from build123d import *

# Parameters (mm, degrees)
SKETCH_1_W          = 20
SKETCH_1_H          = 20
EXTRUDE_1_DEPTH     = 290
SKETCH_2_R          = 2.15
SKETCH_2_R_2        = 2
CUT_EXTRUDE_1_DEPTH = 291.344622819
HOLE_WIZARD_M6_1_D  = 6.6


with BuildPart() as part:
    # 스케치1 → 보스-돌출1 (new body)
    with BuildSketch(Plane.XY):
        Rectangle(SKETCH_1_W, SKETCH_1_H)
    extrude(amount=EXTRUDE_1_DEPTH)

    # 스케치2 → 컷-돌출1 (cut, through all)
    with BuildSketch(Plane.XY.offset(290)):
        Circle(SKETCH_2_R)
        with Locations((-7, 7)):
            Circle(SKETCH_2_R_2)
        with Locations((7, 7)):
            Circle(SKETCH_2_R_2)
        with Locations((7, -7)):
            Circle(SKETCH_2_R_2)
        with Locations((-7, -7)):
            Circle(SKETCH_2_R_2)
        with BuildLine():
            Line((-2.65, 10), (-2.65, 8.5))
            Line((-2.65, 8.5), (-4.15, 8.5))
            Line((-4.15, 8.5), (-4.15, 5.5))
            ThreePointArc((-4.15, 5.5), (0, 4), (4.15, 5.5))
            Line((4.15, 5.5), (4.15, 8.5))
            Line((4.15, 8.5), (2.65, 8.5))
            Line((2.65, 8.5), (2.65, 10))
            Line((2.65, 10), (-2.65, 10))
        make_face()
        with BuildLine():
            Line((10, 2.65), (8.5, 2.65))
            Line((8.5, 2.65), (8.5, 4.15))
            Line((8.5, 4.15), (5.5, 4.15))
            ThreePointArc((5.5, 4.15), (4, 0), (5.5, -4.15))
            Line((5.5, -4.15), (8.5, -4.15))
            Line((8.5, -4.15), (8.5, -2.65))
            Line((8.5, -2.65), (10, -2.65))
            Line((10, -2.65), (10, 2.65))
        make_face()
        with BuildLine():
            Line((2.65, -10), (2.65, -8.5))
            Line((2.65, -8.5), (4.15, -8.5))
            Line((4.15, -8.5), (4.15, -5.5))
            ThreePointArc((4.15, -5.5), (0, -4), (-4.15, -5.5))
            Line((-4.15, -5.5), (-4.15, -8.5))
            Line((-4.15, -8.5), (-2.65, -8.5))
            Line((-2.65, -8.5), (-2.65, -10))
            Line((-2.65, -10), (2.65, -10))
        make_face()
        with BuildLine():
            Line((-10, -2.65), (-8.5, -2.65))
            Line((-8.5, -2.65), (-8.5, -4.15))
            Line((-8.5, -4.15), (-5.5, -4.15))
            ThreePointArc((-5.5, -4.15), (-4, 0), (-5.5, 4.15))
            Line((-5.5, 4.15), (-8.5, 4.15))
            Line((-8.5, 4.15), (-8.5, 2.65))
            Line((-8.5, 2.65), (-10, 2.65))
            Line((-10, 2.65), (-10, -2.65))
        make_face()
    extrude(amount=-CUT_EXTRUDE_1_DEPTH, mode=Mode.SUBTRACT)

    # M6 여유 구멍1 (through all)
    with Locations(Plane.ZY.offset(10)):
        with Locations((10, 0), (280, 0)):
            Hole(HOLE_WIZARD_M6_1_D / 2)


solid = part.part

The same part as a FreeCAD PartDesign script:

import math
import FreeCAD as App
import Part
import Sketcher
Q = App.Units.Quantity


def add_polygon(sketch, points):
    """Adds a closed chain of lines whose ends are joined by coincident constraints."""
    first, n = sketch.GeometryCount, len(points)
    for a, b in zip(points, points[1:] + points[:1]):
        sketch.addGeometry(Part.LineSegment(App.Vector(*a, 0), App.Vector(*b, 0)), False)
    for i in range(n):
        sketch.addConstraint(Sketcher.Constraint("Coincident", first + i, 2, first + (i + 1) % n, 1))

doc = App.newDocument("Part")
body = doc.addObject("PartDesign::Body", "Body")

# Sketch on XY plane
sketch1 = body.newObject("Sketcher::SketchObject", "Sketch")
sketch1.AttachmentSupport = (doc.getObject("XY_Plane"), [""])
sketch1.MapMode = "FlatFace"
add_polygon(sketch1, [(-10, 10), (-10, -10), (10, -10), (10, 10)])  # lines 0-3
sketch1.addConstraint([
    Sketcher.Constraint("Vertical", 0),
    Sketcher.Constraint("Horizontal", 1),
    Sketcher.Constraint("Vertical", 2),
    Sketcher.Constraint("Horizontal", 3),
    Sketcher.Constraint("Symmetric", 0, 2, 2, 2, -1, 1),
    Sketcher.Constraint("Equal", 3, 0),
    Sketcher.Constraint("DistanceX", 1, 1, 1, 2, Q("20 mm")),
])
pad1 = body.newObject("PartDesign::Pad", "Pad")
pad1.Profile = sketch1
pad1.Length = 290

# Sketch on XY plane
sketch2 = body.newObject("Sketcher::SketchObject", "Sketch001")
sketch2.AttachmentSupport = (doc.getObject("XY_Plane"), [""])
sketch2.MapMode = "FlatFace"
sketch2.AttachmentOffset = App.Placement(App.Vector(0, 0, 290), App.Rotation())
sketch2.addGeometry([
    Part.Circle(App.Vector(0, 0, 0), App.Vector(0, 0, 1), 2.1),  # 0
    Part.Circle(App.Vector(-7, 7, 0), App.Vector(0, 0, 1), 2),  # 1
    Part.Circle(App.Vector(7, 7, 0), App.Vector(0, 0, 1), 2),  # 2
    Part.Circle(App.Vector(7, -7, 0), App.Vector(0, 0, 1), 2),  # 3
    Part.Circle(App.Vector(-7, -7, 0), App.Vector(0, 0, 1), 2),  # 4
    Part.LineSegment(App.Vector(-2.6, 10, 0), App.Vector(-2.6, 8.5, 0)),  # 5
    Part.LineSegment(App.Vector(-2.6, 8.5, 0), App.Vector(-4.2, 8.5, 0)),  # 6
    Part.LineSegment(App.Vector(-4.2, 8.5, 0), App.Vector(-4.2, 5.5, 0)),  # 7
    Part.ArcOfCircle(Part.Circle(App.Vector(0, 10.5, 0), App.Vector(0, 0, 1), 6.5), math.radians(-130), math.radians(-50)),  # 8
    Part.LineSegment(App.Vector(4.2, 5.5, 0), App.Vector(4.2, 8.5, 0)),  # 9
    Part.LineSegment(App.Vector(4.2, 8.5, 0), App.Vector(2.6, 8.5, 0)),  # 10
    Part.LineSegment(App.Vector(2.6, 8.5, 0), App.Vector(2.6, 10, 0)),  # 11
    Part.LineSegment(App.Vector(2.6, 10, 0), App.Vector(-2.6, 10, 0)),  # 12
    Part.LineSegment(App.Vector(10, 2.6, 0), App.Vector(8.5, 2.6, 0)),  # 13
    Part.LineSegment(App.Vector(8.5, 2.6, 0), App.Vector(8.5, 4.2, 0)),  # 14
    Part.LineSegment(App.Vector(8.5, 4.2, 0), App.Vector(5.5, 4.2, 0)),  # 15
    Part.ArcOfCircle(Part.Circle(App.Vector(10.5, 0, 0), App.Vector(0, 0, 1), 6.5), math.radians(140), math.radians(220)),  # 16
    Part.LineSegment(App.Vector(5.5, -4.2, 0), App.Vector(8.5, -4.2, 0)),  # 17
    Part.LineSegment(App.Vector(8.5, -4.2, 0), App.Vector(8.5, -2.6, 0)),  # 18
    Part.LineSegment(App.Vector(8.5, -2.6, 0), App.Vector(10, -2.6, 0)),  # 19
    Part.LineSegment(App.Vector(10, -2.6, 0), App.Vector(10, 2.6, 0)),  # 20
    Part.LineSegment(App.Vector(2.6, -10, 0), App.Vector(2.6, -8.5, 0)),  # 21
    Part.LineSegment(App.Vector(2.6, -8.5, 0), App.Vector(4.2, -8.5, 0)),  # 22
    Part.LineSegment(App.Vector(4.2, -8.5, 0), App.Vector(4.2, -5.5, 0)),  # 23
    Part.ArcOfCircle(Part.Circle(App.Vector(0, -10.5, 0), App.Vector(0, 0, 1), 6.5), math.radians(50), math.radians(130)),  # 24
    Part.LineSegment(App.Vector(-4.2, -5.5, 0), App.Vector(-4.2, -8.5, 0)),  # 25
    Part.LineSegment(App.Vector(-4.2, -8.5, 0), App.Vector(-2.6, -8.5, 0)),  # 26
    Part.LineSegment(App.Vector(-2.6, -8.5, 0), App.Vector(-2.6, -10, 0)),  # 27
    Part.LineSegment(App.Vector(-2.6, -10, 0), App.Vector(2.6, -10, 0)),  # 28
    Part.LineSegment(App.Vector(-10, -2.6, 0), App.Vector(-8.5, -2.6, 0)),  # 29
    Part.LineSegment(App.Vector(-8.5, -2.6, 0), App.Vector(-8.5, -4.2, 0)),  # 30
    Part.LineSegment(App.Vector(-8.5, -4.2, 0), App.Vector(-5.5, -4.2, 0)),  # 31
    Part.ArcOfCircle(Part.Circle(App.Vector(-10.5, 0, 0), App.Vector(0, 0, 1), 6.5), math.radians(-40), math.radians(40)),  # 32
    Part.LineSegment(App.Vector(-5.5, 4.2, 0), App.Vector(-8.5, 4.2, 0)),  # 33
    Part.LineSegment(App.Vector(-8.5, 4.2, 0), App.Vector(-8.5, 2.6, 0)),  # 34
    Part.LineSegment(App.Vector(-8.5, 2.6, 0), App.Vector(-10, 2.6, 0)),  # 35
    Part.LineSegment(App.Vector(-10, 2.6, 0), App.Vector(-10, -2.6, 0)),  # 36
], False)
sketch2.addConstraint([
    Sketcher.Constraint("Coincident", 5, 2, 6, 1),
    Sketcher.Constraint("Coincident", 6, 2, 7, 1),
    Sketcher.Constraint("Coincident", 7, 2, 8, 1),
    Sketcher.Constraint("Coincident", 8, 2, 9, 1),
    Sketcher.Constraint("Coincident", 9, 2, 10, 1),
    Sketcher.Constraint("Coincident", 10, 2, 11, 1),
    Sketcher.Constraint("Coincident", 11, 2, 12, 1),
    Sketcher.Constraint("Coincident", 12, 2, 5, 1),
    Sketcher.Constraint("Coincident", 13, 2, 14, 1),
    Sketcher.Constraint("Coincident", 14, 2, 15, 1),
    Sketcher.Constraint("Coincident", 15, 2, 16, 1),
    Sketcher.Constraint("Coincident", 16, 2, 17, 1),
    Sketcher.Constraint("Coincident", 17, 2, 18, 1),
    Sketcher.Constraint("Coincident", 18, 2, 19, 1),
    Sketcher.Constraint("Coincident", 19, 2, 20, 1),
    Sketcher.Constraint("Coincident", 20, 2, 13, 1),
    Sketcher.Constraint("Coincident", 21, 2, 22, 1),
    Sketcher.Constraint("Coincident", 22, 2, 23, 1),
    Sketcher.Constraint("Coincident", 23, 2, 24, 1),
    Sketcher.Constraint("Coincident", 24, 2, 25, 1),
    Sketcher.Constraint("Coincident", 25, 2, 26, 1),
    Sketcher.Constraint("Coincident", 26, 2, 27, 1),
    Sketcher.Constraint("Coincident", 27, 2, 28, 1),
    Sketcher.Constraint("Coincident", 28, 2, 21, 1),
    Sketcher.Constraint("Coincident", 29, 2, 30, 1),
    Sketcher.Constraint("Coincident", 30, 2, 31, 1),
    Sketcher.Constraint("Coincident", 31, 2, 32, 1),
    Sketcher.Constraint("Coincident", 32, 2, 33, 1),
    Sketcher.Constraint("Coincident", 33, 2, 34, 1),
    Sketcher.Constraint("Coincident", 34, 2, 35, 1),
    Sketcher.Constraint("Coincident", 35, 2, 36, 1),
    Sketcher.Constraint("Coincident", 36, 2, 29, 1),
    Sketcher.Constraint("Vertical", 5),
    Sketcher.Constraint("Horizontal", 6),
    Sketcher.Constraint("Vertical", 7),
    Sketcher.Constraint("Vertical", 9),
    Sketcher.Constraint("Horizontal", 10),
    Sketcher.Constraint("Vertical", 11),
    Sketcher.Constraint("Horizontal", 12),
    Sketcher.Constraint("Horizontal", 13),
    Sketcher.Constraint("Vertical", 14),
    Sketcher.Constraint("Horizontal", 15),
    Sketcher.Constraint("Horizontal", 17),
    Sketcher.Constraint("Vertical", 18),
    Sketcher.Constraint("Horizontal", 19),
    Sketcher.Constraint("Vertical", 20),
    Sketcher.Constraint("Vertical", 21),
    Sketcher.Constraint("Horizontal", 22),
    Sketcher.Constraint("Vertical", 23),
    Sketcher.Constraint("Vertical", 25),
    Sketcher.Constraint("Horizontal", 26),
    Sketcher.Constraint("Vertical", 27),
    Sketcher.Constraint("Horizontal", 28),
    Sketcher.Constraint("Horizontal", 29),
    Sketcher.Constraint("Vertical", 30),
    Sketcher.Constraint("Horizontal", 31),
    Sketcher.Constraint("Horizontal", 33),
    Sketcher.Constraint("Vertical", 34),
    Sketcher.Constraint("Horizontal", 35),
    Sketcher.Constraint("Vertical", 36),
    Sketcher.Constraint("Coincident", 0, 3, -1, 1),
    Sketcher.Constraint("Equal", 1, 2),
    Sketcher.Constraint("Equal", 2, 3),
    Sketcher.Constraint("Equal", 3, 4),
    Sketcher.Constraint("Equal", 8, 16),
    Sketcher.Constraint("Equal", 16, 24),
    Sketcher.Constraint("Equal", 24, 32),
    Sketcher.Constraint("Symmetric", 1, 3, 3, 3, -1, 1),
    Sketcher.Constraint("Symmetric", 2, 3, 4, 3, -1, 1),
    Sketcher.Constraint("Symmetric", 8, 3, 24, 3, -1, 1),
    Sketcher.Constraint("Symmetric", 16, 3, 32, 3, -1, 1),
    Sketcher.Constraint("Symmetric", 5, 2, 21, 2, -1, 1),
    Sketcher.Constraint("Symmetric", 9, 2, 25, 2, -1, 1),
    Sketcher.Constraint("Symmetric", 11, 2, 27, 2, -1, 1),
    Sketcher.Constraint("Symmetric", 13, 2, 29, 2, -1, 1),
    Sketcher.Constraint("Symmetric", 17, 2, 33, 2, -1, 1),
    Sketcher.Constraint("Symmetric", 19, 2, 35, 2, -1, 1),
    Sketcher.Constraint("Symmetric", 1, 3, 2, 3, -2),
    Sketcher.Constraint("Symmetric", 7, 2, 8, 2, -2),
    Sketcher.Constraint("Symmetric", 5, 2, 10, 2, -2),
    Sketcher.Constraint("Symmetric", 18, 2, 29, 2, -2),
    Sketcher.Constraint("Symmetric", 16, 2, 31, 2, -2),
    Sketcher.Constraint("Horizontal", 23, 2, 24, 2),
    Sketcher.Constraint("Horizontal", 15, 2, 32, 2),
    Sketcher.Constraint("Equal", 10, 13),
    Sketcher.Constraint("Equal", 35, 5),
    Sketcher.Constraint("Equal", 33, 7),
    Sketcher.Constraint("Equal", 11, 14),
    Sketcher.Constraint("Equal", 28, 20),
    Sketcher.Constraint("Diameter", 1, Q("4 mm")),
    Sketcher.Constraint("Diameter", 0, Q("4.3 mm")),
    Sketcher.Constraint("DistanceX", 15, 2, 15, 1, Q("3 mm")),
    Sketcher.Constraint("DistanceX", 6, 2, 6, 1, Q("1.5 mm")),
    Sketcher.Constraint("DistanceX", 12, 2, 12, 1, Q("5.3 mm")),
    Sketcher.Constraint("DistanceX", 1, 3, -1, 1, Q("7 mm")),
    Sketcher.Constraint("DistanceY", -1, 1, 1, 3, Q("7 mm")),
    Sketcher.Constraint("DistanceY", -1, 1, 11, 2, Q("10 mm")),
    Sketcher.Constraint("DistanceX", -1, 1, 19, 2, Q("10 mm")),
    Sketcher.Constraint("Radius", 8, Q("6.490833 mm")),
])
pocket1 = body.newObject("PartDesign::Pocket", "Pocket")
pocket1.Profile = sketch2
pocket1.Type = "ThroughAll"

# Sketch on YZ plane
sketch3 = body.newObject("Sketcher::SketchObject", "Sketch002")
sketch3.AttachmentSupport = (doc.getObject("YZ_Plane"), [""])
sketch3.MapMode = "FlatFace"
sketch3.AttachmentOffset = App.Placement(App.Vector(0, 0, -10), App.Rotation())
sketch3.addGeometry([
    Part.Circle(App.Vector(0, 10, 0), App.Vector(0, 0, 1), 3.3),
    Part.Circle(App.Vector(0, 280, 0), App.Vector(0, 0, 1), 3.3),
], False)
sketch3.addConstraint([
    Sketcher.Constraint("Equal", 0, 1),
    Sketcher.Constraint("PointOnObject", 0, 3, -2),
    Sketcher.Constraint("PointOnObject", 1, 3, -2),
    Sketcher.Constraint("Diameter", 0, Q("6.6 mm")),
    Sketcher.Constraint("DistanceY", -1, 1, 0, 3, Q("10 mm")),
    Sketcher.Constraint("DistanceY", -1, 1, 1, 3, Q("280 mm")),
])
doc.recompute()
hole = body.newObject("PartDesign::Hole", "Hole")
hole.Profile = sketch3
hole.ThreadType = "None"
hole.Diameter = 6.6
hole.DepthType = "ThroughAll"
hole.Reversed = True

doc.recompute()
